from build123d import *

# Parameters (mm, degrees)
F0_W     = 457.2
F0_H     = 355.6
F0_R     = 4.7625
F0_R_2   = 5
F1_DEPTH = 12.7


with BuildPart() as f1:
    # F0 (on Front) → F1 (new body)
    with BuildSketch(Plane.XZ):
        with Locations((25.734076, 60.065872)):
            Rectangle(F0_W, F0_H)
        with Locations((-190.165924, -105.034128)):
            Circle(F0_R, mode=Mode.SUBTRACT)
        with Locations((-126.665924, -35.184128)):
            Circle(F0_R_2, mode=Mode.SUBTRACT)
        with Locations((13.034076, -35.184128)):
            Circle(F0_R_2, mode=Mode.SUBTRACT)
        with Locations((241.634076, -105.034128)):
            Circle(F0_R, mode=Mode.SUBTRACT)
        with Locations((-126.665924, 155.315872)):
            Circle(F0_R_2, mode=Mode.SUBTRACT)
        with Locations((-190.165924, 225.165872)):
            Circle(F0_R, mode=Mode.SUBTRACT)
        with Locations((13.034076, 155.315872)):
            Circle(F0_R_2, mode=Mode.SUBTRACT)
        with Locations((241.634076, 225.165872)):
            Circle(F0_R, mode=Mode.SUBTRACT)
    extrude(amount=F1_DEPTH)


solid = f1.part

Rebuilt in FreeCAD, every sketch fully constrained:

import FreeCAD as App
import Part
import Sketcher
from FreeCAD import Vector
Q = App.Units.Quantity


def add_polygon(sketch, points):
    """Adds a closed chain of lines whose ends are joined by coincident constraints."""
    first, n = sketch.GeometryCount, len(points)
    for a, b in zip(points, points[1:] + points[:1]):
        sketch.addGeometry(Part.LineSegment(App.Vector(*a, 0), App.Vector(*b, 0)), False)
    for i in range(n):
        sketch.addConstraint(Sketcher.Constraint("Coincident", first + i, 2, first + (i + 1) % n, 1))

doc = App.newDocument("Part")
params = doc.addObject("Spreadsheet::Sheet", "Params")
for row, (alias, value) in enumerate([
    ("sketch1_width", "18 in"),
    ("sketch1_height", "14 in"),
    ("sketch1_diameter", "0.375 in"),
    ("pad1_length", "0.5 in"),
], start=1):
    params.set(f"A{row}", alias)
    params.set(f"B{row}", "=" + value)
    params.setAlias(f"B{row}", alias)

body = doc.addObject("PartDesign::Body", "Body")

sketch1 = body.newObject("Sketcher::SketchObject", "Sketch")
sketch1.AttachmentSupport = (doc.getObject("XZ_Plane"), [""])
sketch1.MapMode = "FlatFace"
add_polygon(sketch1, [(-202.9, 237.9), (-202.9, -117.7), (254.3, -117.7), (254.3, 237.9)])
sketch1.addGeometry(Part.Circle(Vector(-190.2, -105, 0), Vector(0, 0, 1), 4.8), False)
sketch1.addGeometry(Part.Circle(Vector(-126.7, -35.2, 0), Vector(0, 0, 1), 5), False)
sketch1.addGeometry(Part.Circle(Vector(13, -35.2, 0), Vector(0, 0, 1), 5), False)
sketch1.addGeometry(Part.Circle(Vector(241.6, -105, 0), Vector(0, 0, 1), 4.8), False)
sketch1.addGeometry(Part.Circle(Vector(-126.7, 155.3, 0), Vector(0, 0, 1), 5), False)
sketch1.addGeometry(Part.Circle(Vector(-190.2, 225.2, 0), Vector(0, 0, 1), 4.8), False)
sketch1.addGeometry(Part.Circle(Vector(13, 155.3, 0), Vector(0, 0, 1), 5), False)
sketch1.addGeometry(Part.Circle(Vector(241.6, 225.2, 0), Vector(0, 0, 1), 4.8), False)
sketch1.addConstraint([
    Sketcher.Constraint("Vertical", 0),
    Sketcher.Constraint("Horizontal", 1),
    Sketcher.Constraint("Vertical", 2),
    Sketcher.Constraint("Horizontal", 3),
    Sketcher.Constraint("Equal", 5, 6),
    Sketcher.Constraint("Equal", 4, 7),
    Sketcher.Constraint("Equal", 6, 8),
    Sketcher.Constraint("Equal", 7, 9),
    Sketcher.Constraint("Equal", 8, 10),
    Sketcher.Constraint("Equal", 9, 11),
    Sketcher.Constraint("Horizontal", 5, 3, 6, 3),
    Sketcher.Constraint("Horizontal", 4, 3, 7, 3),
    Sketcher.Constraint("Horizontal", 8, 3, 10, 3),
    Sketcher.Constraint("Horizontal", 9, 3, 11, 3),
    Sketcher.Constraint("Vertical", 5, 3, 8, 3),
    Sketcher.Constraint("Vertical", 4, 3, 9, 3),
    Sketcher.Constraint("Vertical", 6, 3, 10, 3),
    Sketcher.Constraint("Vertical", 7, 3, 11, 3),
    Sketcher.Constraint("DistanceX", 1, 1, 1, 2, Q("18 in")),
    Sketcher.Constraint("DistanceY", 0, 2, 0, 1, Q("14 in")),
    Sketcher.Constraint("Diameter", 4, Q("0.375 in")),
    Sketcher.Constraint("DistanceX", 4, 3, 6, 3, Q("8 in")),
    Sketcher.Constraint("DistanceX", 6, 3, 7, 3, Q("9 in")),
    Sketcher.Constraint("DistanceY", 4, 3, 9, 3, Q("13 in")),
    Sketcher.Constraint("DistanceX", 0, 2, 5, 3, Q("3 in")),
    Sketcher.Constraint("DistanceX", 4, 3, 5, 3, Q("2.5 in")),
    Sketcher.Constraint("DistanceY", 5, 3, 8, 3, Q("7.5 in")),
    Sketcher.Constraint("DistanceY", 0, 2, 4, 3, Q("0.5 in")),
    Sketcher.Constraint("Diameter", 5, 10.0),
    Sketcher.Constraint("DistanceY", 4, 3, 5, 3, Q("2.75 in")),
    Sketcher.Constraint("DistanceY", -1, 1, 9, 3, 225.165872),
    Sketcher.Constraint("DistanceX", 4, 3, -1, 1, 190.165924),
])
sketch1.setExpression("Constraints[22]", "Params.sketch1_width")
sketch1.setExpression("Constraints[23]", "Params.sketch1_height")
sketch1.setExpression("Constraints[24]", "Params.sketch1_diameter")
pad1 = body.newObject("PartDesign::Pad", "Pad")
pad1.Profile = sketch1
pad1.setExpression("Length", "Params.pad1_length")

doc.recompute()
